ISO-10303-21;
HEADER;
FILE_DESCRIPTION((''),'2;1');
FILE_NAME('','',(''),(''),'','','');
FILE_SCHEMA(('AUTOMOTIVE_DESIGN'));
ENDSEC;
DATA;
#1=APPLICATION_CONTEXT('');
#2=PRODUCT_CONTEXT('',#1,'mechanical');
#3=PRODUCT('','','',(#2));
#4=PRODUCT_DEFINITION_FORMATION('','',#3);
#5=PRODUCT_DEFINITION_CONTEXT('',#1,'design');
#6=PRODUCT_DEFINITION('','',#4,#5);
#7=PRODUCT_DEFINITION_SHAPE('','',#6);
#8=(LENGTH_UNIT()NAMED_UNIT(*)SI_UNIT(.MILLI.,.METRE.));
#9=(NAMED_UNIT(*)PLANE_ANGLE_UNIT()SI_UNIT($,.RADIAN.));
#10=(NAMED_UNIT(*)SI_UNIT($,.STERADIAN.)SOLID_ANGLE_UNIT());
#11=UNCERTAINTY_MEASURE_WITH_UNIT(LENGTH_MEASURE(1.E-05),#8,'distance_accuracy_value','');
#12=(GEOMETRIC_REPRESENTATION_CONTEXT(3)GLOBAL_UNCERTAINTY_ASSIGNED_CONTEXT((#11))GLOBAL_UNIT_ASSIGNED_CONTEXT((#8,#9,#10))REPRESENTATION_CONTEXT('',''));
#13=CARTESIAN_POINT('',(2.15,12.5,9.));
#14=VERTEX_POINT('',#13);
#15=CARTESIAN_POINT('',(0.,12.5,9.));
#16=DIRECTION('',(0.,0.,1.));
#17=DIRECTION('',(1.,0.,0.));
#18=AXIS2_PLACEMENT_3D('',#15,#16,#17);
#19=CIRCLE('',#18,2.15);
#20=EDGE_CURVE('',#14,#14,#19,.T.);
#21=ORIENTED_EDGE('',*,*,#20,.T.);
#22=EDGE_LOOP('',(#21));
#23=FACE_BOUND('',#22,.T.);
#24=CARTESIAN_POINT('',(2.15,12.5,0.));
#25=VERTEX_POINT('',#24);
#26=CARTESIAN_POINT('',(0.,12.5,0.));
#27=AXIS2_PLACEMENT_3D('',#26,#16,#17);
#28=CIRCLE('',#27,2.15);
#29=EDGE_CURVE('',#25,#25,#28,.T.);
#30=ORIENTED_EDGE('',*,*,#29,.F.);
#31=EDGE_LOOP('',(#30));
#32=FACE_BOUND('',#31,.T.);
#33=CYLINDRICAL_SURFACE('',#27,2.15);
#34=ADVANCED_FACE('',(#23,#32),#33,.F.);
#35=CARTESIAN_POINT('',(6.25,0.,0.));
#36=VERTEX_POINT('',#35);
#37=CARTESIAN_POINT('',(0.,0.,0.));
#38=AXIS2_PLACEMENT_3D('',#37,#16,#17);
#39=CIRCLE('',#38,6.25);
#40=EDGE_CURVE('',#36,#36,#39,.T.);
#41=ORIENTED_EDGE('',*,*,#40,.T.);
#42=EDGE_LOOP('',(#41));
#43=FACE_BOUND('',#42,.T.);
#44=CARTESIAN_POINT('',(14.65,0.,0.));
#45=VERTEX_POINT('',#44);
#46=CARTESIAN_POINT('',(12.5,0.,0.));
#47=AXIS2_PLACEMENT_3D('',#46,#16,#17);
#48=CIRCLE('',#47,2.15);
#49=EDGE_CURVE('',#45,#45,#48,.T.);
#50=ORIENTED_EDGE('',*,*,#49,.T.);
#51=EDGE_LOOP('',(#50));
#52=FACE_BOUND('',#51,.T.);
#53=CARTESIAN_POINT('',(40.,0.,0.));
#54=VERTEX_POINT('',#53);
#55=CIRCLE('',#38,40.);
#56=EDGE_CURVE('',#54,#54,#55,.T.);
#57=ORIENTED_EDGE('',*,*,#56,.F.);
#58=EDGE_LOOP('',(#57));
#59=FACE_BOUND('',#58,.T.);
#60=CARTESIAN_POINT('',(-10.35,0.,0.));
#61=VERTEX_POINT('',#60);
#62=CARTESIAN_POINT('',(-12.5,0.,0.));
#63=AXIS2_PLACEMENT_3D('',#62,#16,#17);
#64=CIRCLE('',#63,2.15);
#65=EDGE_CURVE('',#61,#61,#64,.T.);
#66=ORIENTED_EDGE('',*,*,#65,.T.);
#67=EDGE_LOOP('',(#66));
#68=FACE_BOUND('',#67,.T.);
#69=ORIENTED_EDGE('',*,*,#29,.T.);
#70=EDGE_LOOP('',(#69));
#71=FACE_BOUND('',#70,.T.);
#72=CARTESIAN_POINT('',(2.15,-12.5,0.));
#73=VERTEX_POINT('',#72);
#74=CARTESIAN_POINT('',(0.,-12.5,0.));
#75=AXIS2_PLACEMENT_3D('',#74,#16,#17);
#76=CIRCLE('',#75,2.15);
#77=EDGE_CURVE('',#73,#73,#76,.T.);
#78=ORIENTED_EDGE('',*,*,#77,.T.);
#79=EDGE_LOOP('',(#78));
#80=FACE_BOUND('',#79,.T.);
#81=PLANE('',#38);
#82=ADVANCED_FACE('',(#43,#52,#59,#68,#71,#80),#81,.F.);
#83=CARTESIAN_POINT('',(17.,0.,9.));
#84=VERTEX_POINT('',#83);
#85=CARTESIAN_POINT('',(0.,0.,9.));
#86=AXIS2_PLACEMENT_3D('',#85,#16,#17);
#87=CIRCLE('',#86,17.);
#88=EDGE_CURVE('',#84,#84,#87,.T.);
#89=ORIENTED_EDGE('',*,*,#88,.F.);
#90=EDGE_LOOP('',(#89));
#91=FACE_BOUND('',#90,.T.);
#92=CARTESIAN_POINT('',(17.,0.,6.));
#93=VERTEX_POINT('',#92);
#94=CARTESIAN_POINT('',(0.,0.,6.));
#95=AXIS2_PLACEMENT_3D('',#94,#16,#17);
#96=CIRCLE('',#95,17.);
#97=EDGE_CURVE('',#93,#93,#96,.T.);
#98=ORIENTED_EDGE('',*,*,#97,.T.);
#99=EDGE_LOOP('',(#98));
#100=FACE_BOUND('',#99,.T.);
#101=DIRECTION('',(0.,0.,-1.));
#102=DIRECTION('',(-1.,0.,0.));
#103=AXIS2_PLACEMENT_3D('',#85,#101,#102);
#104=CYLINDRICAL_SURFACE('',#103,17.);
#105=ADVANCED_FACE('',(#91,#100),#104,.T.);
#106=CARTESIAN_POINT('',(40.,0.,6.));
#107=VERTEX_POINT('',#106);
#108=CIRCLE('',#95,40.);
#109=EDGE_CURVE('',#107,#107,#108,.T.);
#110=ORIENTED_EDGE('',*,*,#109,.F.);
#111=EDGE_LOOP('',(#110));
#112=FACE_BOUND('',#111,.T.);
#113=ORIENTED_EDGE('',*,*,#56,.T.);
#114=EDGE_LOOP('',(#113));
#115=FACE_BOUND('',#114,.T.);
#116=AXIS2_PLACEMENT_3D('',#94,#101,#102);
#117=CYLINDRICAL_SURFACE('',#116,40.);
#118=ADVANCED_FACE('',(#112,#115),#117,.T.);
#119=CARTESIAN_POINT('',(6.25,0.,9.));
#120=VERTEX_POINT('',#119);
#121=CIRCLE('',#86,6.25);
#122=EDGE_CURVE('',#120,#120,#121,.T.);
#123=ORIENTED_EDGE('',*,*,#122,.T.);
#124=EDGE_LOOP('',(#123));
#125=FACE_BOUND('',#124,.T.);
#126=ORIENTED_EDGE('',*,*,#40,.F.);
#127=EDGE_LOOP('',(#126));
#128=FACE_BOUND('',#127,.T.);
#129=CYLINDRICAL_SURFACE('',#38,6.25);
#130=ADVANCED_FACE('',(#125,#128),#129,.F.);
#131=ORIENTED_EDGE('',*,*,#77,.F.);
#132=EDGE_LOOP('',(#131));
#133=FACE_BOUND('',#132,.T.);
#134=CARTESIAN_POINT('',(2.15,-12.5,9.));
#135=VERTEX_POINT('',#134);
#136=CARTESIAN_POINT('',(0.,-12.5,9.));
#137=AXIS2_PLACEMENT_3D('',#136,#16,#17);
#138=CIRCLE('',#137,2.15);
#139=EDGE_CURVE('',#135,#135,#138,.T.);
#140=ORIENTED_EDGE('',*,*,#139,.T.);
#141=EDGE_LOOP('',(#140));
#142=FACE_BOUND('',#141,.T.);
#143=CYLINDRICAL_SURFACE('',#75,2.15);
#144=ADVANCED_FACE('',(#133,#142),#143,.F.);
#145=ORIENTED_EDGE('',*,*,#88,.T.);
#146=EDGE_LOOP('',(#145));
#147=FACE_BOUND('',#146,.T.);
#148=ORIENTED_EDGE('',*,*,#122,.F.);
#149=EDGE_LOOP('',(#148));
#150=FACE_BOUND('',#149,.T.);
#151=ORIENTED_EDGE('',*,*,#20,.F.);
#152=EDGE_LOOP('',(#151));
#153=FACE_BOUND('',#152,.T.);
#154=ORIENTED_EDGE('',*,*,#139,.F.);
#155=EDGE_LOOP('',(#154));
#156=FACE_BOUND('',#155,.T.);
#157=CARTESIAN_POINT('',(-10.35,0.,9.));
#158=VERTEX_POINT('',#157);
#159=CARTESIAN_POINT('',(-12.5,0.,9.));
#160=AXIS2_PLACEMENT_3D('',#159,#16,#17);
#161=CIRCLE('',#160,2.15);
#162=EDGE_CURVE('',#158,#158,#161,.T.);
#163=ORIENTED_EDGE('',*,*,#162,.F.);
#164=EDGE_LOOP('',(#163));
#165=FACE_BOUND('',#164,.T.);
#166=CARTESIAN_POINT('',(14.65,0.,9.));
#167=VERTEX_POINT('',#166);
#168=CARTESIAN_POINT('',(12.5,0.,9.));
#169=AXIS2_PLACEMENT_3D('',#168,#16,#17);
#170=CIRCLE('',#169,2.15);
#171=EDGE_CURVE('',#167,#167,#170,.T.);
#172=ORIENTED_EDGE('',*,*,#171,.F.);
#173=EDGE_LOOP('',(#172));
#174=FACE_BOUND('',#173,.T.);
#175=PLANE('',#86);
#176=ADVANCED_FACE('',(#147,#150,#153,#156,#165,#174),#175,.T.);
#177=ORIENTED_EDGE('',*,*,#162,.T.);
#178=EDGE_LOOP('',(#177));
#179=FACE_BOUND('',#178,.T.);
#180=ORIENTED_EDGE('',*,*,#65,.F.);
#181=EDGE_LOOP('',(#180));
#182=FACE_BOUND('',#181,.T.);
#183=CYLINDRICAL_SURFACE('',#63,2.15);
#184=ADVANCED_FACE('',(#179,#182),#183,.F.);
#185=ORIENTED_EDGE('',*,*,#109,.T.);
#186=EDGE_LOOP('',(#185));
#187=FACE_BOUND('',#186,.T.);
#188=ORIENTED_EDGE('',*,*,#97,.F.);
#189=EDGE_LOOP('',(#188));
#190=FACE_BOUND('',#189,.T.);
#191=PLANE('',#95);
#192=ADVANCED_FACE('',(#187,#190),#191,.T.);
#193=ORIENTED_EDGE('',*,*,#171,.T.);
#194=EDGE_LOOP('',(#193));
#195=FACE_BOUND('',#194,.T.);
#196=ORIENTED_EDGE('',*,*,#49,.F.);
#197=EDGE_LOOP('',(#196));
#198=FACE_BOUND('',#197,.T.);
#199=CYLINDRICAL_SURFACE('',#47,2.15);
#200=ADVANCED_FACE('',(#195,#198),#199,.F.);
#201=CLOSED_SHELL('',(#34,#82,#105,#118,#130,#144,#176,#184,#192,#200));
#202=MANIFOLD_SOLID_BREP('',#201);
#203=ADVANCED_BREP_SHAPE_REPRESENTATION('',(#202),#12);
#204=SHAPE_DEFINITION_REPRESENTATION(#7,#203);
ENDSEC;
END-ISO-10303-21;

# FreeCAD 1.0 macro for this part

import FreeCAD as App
import Part
import Sketcher

V = App.Vector
Q = App.Units.Quantity

doc = App.newDocument("Part")
body = doc.addObject("PartDesign::Body", "Body")

sketch1 = body.newObject("Sketcher::SketchObject", "Sketch")
sketch1.AttachmentSupport = (doc.getObject("XY_Plane"), [""])
sketch1.MapMode = "FlatFace"
sketch1.addGeometry(Part.Circle(V(0, 0, 0), V(0, 0, 1), 40), False)
sketch1.addConstraint(Sketcher.Constraint("Coincident", 0, 3, -1, 1))
sketch1.addConstraint(Sketcher.Constraint("Diameter", 0, Q("80 mm")))
pad1 = body.newObject("PartDesign::Pad", "Pad")
pad1.Profile = sketch1
pad1.Length = 6

sketch2 = body.newObject("Sketcher::SketchObject", "Sketch001")
sketch2.AttachmentSupport = (doc.getObject("XY_Plane"), [""])
sketch2.MapMode = "FlatFace"
sketch2.AttachmentOffset = App.Placement(V(0, 0, 6), App.Rotation())
sketch2.addGeometry(Part.Circle(V(0, 0, 0), V(0, 0, 1), 17), False)
sketch2.addConstraint(Sketcher.Constraint("Coincident", 0, 3, -1, 1))
sketch2.addConstraint(Sketcher.Constraint("Diameter", 0, Q("34 mm")))
pad2 = body.newObject("PartDesign::Pad", "Pad001")
pad2.Profile = sketch2
pad2.Length = 3

sketch3 = body.newObject("Sketcher::SketchObject", "Sketch002")
sketch3.AttachmentSupport = (doc.getObject("XY_Plane"), [""])
sketch3.MapMode = "FlatFace"
sketch3.AttachmentOffset = App.Placement(V(0, 0, 9), App.Rotation())
sketch3.addGeometry(Part.Circle(V(0, 0, 0), V(0, 0, 1), 6.2), False)
sketch3.addGeometry(Part.Circle(V(0, 12.5, 0), V(0, 0, 1), 2.1), False)
sketch3.addGeometry(Part.Circle(V(12.5, 0, 0), V(0, 0, 1), 2.1), False)
sketch3.addGeometry(Part.Circle(V(0, -12.5, 0), V(0, 0, 1), 2.1), False)
sketch3.addGeometry(Part.Circle(V(-12.5, 0, 0), V(0, 0, 1), 2.1), False)
sketch3.addConstraint(Sketcher.Constraint("Coincident", 0, 3, -1, 1))
sketch3.addConstraint(Sketcher.Constraint("Equal", 1, 2))
sketch3.addConstraint(Sketcher.Constraint("Equal", 2, 3))
sketch3.addConstraint(Sketcher.Constraint("Equal", 3, 4))
sketch3.addConstraint(Sketcher.Constraint("Symmetric", 1, 3, 3, 3, -1, 1))
sketch3.addConstraint(Sketcher.Constraint("Symmetric", 2, 3, 4, 3, -1, 1))
sketch3.addConstraint(Sketcher.Constraint("PointOnObject", 1, 3, -2))
sketch3.addConstraint(Sketcher.Constraint("PointOnObject", 2, 3, -1))
sketch3.addConstraint(Sketcher.Constraint("Diameter", 0, Q("12.5 mm")))
sketch3.addConstraint(Sketcher.Constraint("Diameter", 1, Q("4.3 mm")))
sketch3.addConstraint(Sketcher.Constraint("DistanceY", 3, 3, 1, 3, Q("25 mm")))
sketch3.addConstraint(Sketcher.Constraint("DistanceX", 4, 3, 2, 3, Q("25 mm")))
pocket1 = body.newObject("PartDesign::Pocket", "Pocket")
pocket1.Profile = sketch3
pocket1.Type = "ThroughAll"
pocket1.Midplane = True

doc.recompute()
